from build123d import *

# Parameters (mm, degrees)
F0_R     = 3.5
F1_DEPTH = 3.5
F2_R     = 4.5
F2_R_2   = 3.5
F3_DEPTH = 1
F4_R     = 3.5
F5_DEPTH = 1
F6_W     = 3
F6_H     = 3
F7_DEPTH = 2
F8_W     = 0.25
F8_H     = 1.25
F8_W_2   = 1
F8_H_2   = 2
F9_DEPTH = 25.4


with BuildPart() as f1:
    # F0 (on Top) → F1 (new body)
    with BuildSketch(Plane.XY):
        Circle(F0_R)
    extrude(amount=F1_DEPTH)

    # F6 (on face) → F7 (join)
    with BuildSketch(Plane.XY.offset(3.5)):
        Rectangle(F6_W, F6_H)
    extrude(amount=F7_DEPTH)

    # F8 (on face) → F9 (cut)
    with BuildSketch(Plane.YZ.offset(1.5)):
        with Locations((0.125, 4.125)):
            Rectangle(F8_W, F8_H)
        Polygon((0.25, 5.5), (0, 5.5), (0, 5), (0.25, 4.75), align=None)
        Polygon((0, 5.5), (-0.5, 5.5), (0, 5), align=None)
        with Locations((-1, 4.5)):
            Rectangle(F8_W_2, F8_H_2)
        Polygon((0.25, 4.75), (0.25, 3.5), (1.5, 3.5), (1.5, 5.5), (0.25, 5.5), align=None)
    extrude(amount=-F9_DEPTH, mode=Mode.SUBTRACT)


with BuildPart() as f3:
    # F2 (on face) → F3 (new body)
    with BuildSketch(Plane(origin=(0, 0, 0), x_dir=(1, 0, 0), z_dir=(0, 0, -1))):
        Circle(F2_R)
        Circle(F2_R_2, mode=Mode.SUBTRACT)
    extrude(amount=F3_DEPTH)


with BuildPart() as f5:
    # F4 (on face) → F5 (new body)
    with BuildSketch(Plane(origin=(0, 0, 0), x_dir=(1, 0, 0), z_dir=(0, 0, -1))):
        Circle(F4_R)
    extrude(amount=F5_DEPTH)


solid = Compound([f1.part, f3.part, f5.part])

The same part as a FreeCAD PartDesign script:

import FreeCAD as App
import Part
import Sketcher

V = App.Vector
Q = App.Units.Quantity

doc = App.newDocument("Part")
body = doc.addObject("PartDesign::Body", "Body")

# Sketch on XY plane
sketch1 = body.newObject("Sketcher::SketchObject", "Sketch")
sketch1.AttachmentSupport = (doc.getObject("XY_Plane"), [""])
sketch1.MapMode = "FlatFace"
sketch1.addGeometry(Part.Circle(V(0, 0, 0), V(0, 0, 1), 3.5), False)
sketch1.addConstraint(Sketcher.Constraint("Coincident", 0, 3, -1, 1))
sketch1.addConstraint(Sketcher.Constraint("Diameter", 0, Q("7 mm")))
pad1 = body.newObject("PartDesign::Pad", "Pad")
pad1.Profile = sketch1
pad1.Length = 3.5

# Sketch on XY plane
sketch2 = body.newObject("Sketcher::SketchObject", "Sketch001")
sketch2.AttachmentSupport = (doc.getObject("XY_Plane"), [""])
sketch2.MapMode = "FlatFace"
sketch2.AttachmentOffset = App.Placement(V(0, 0, 3.5), App.Rotation())
sketch2.addGeometry(Part.LineSegment(V(-1.5, 1.5, 0), V(-1.5, -1.5, 0)), False)
sketch2.addGeometry(Part.LineSegment(V(-1.5, -1.5, 0), V(1.5, -1.5, 0)), False)
sketch2.addGeometry(Part.LineSegment(V(1.5, -1.5, 0), V(1.5, 1.5, 0)), False)
sketch2.addGeometry(Part.LineSegment(V(1.5, 1.5, 0), V(-1.5, 1.5, 0)), False)
sketch2.addConstraint(Sketcher.Constraint("Coincident", 0, 2, 1, 1))
sketch2.addConstraint(Sketcher.Constraint("Coincident", 1, 2, 2, 1))
sketch2.addConstraint(Sketcher.Constraint("Coincident", 2, 2, 3, 1))
sketch2.addConstraint(Sketcher.Constraint("Coincident", 3, 2, 0, 1))
sketch2.addConstraint(Sketcher.Constraint("Vertical", 0))
sketch2.addConstraint(Sketcher.Constraint("Horizontal", 1))
sketch2.addConstraint(Sketcher.Constraint("Vertical", 2))
sketch2.addConstraint(Sketcher.Constraint("Horizontal", 3))
sketch2.addConstraint(Sketcher.Constraint("Symmetric", 0, 2, 2, 2, -1, 1))
sketch2.addConstraint(Sketcher.Constraint("Equal", 3, 0))
sketch2.addConstraint(Sketcher.Constraint("DistanceX", 1, 1, 1, 2, Q("3 mm")))
pad2 = body.newObject("PartDesign::Pad", "Pad001")
pad2.Profile = sketch2
pad2.Length = 2

# Sketch on YZ plane
sketch3 = body.newObject("Sketcher::SketchObject", "Sketch002")
sketch3.AttachmentSupport = (doc.getObject("YZ_Plane"), [""])
sketch3.MapMode = "FlatFace"
sketch3.AttachmentOffset = App.Placement(V(0, 0, 1.5), App.Rotation())
sketch3.addGeometry(Part.LineSegment(V(0, 4.75, 0), V(0, 3.5, 0)), False)
sketch3.addGeometry(Part.LineSegment(V(0, 3.5, 0), V(1.5, 3.5, 0)), False)
sketch3.addGeometry(Part.LineSegment(V(1.5, 3.5, 0), V(1.5, 5.5, 0)), False)
sketch3.addGeometry(Part.LineSegment(V(1.5, 5.5, 0), V(-0.5, 5.5, 0)), False)
sketch3.addGeometry(Part.LineSegment(V(-0.5, 5.5, 0), V(0.25, 4.75, 0)), False)
sketch3.addGeometry(Part.LineSegment(V(0.25, 4.75, 0), V(0, 4.75, 0)), False)
sketch3.addGeometry(Part.LineSegment(V(-1.5, 5.5, 0), V(-1.5, 3.5, 0)), False)
sketch3.addGeometry(Part.LineSegment(V(-1.5, 3.5, 0), V(-0.5, 3.5, 0)), False)
sketch3.addGeometry(Part.LineSegment(V(-0.5, 3.5, 0), V(-0.5, 5.5, 0)), False)
sketch3.addGeometry(Part.LineSegment(V(-0.5, 5.5, 0), V(-1.5, 5.5, 0)), False)
sketch3.addConstraint(Sketcher.Constraint("Coincident", 0, 2, 1, 1))
sketch3.addConstraint(Sketcher.Constraint("Coincident", 1, 2, 2, 1))
sketch3.addConstraint(Sketcher.Constraint("Coincident", 2, 2, 3, 1))
sketch3.addConstraint(Sketcher.Constraint("Coincident", 3, 2, 4, 1))
sketch3.addConstraint(Sketcher.Constraint("Coincident", 4, 2, 5, 1))
sketch3.addConstraint(Sketcher.Constraint("Coincident", 5, 2, 0, 1))
sketch3.addConstraint(Sketcher.Constraint("Coincident", 6, 2, 7, 1))
sketch3.addConstraint(Sketcher.Constraint("Coincident", 7, 2, 8, 1))
sketch3.addConstraint(Sketcher.Constraint("Coincident", 8, 2, 9, 1))
sketch3.addConstraint(Sketcher.Constraint("Coincident", 9, 2, 6, 1))
sketch3.addConstraint(Sketcher.Constraint("Vertical", 0))
sketch3.addConstraint(Sketcher.Constraint("Horizontal", 1))
sketch3.addConstraint(Sketcher.Constraint("Vertical", 2))
sketch3.addConstraint(Sketcher.Constraint("Horizontal", 3))
sketch3.addConstraint(Sketcher.Constraint("Horizontal", 5))
sketch3.addConstraint(Sketcher.Constraint("Vertical", 6))
sketch3.addConstraint(Sketcher.Constraint("Horizontal", 7))
sketch3.addConstraint(Sketcher.Constraint("Vertical", 8))
sketch3.addConstraint(Sketcher.Constraint("Horizontal", 9))
sketch3.addConstraint(Sketcher.Constraint("Coincident", 8, 2, 3, 2))
sketch3.addConstraint(Sketcher.Constraint("Symmetric", 1, 2, 6, 2, -2))
sketch3.addConstraint(Sketcher.Constraint("PointOnObject", 0, 2, -2))
sketch3.addConstraint(Sketcher.Constraint("Equal", 3, 2))
sketch3.addConstraint(Sketcher.Constraint("DistanceX", 3, 2, 3, 1, Q("2 mm")))
sketch3.addConstraint(Sketcher.Constraint("DistanceX", 7, 1, 7, 2, Q("1 mm")))
sketch3.addConstraint(Sketcher.Constraint("Angle", 4, Q("-45 deg")))
sketch3.addConstraint(Sketcher.Constraint("DistanceX", 5, 2, 5, 1, Q("0.25 mm")))
sketch3.addConstraint(Sketcher.Constraint("DistanceY", -1, 1, 0, 2, Q("3.5 mm")))
pocket1 = body.newObject("PartDesign::Pocket", "Pocket")
pocket1.Profile = sketch3
pocket1.Length = 25.4
body2 = doc.addObject("PartDesign::Body", "Body001")

# Sketch on XY plane
sketch4 = body2.newObject("Sketcher::SketchObject", "Sketch003")
sketch4.AttachmentSupport = (doc.getObject("XY_Plane001"), [""])
sketch4.MapMode = "FlatFace"
sketch4.addGeometry(Part.Circle(V(0, 0, 0), V(0, 0, 1), 4.5), False)
sketch4.addGeometry(Part.Circle(V(0, 0, 0), V(0, 0, 1), 3.5), False)
sketch4.addConstraint(Sketcher.Constraint("Coincident", 0, 3, -1, 1))
sketch4.addConstraint(Sketcher.Constraint("Coincident", 1, 3, -1, 1))
sketch4.addConstraint(Sketcher.Constraint("Diameter", 0, Q("9 mm")))
sketch4.addConstraint(Sketcher.Constraint("Diameter", 1, Q("7 mm")))
pad3 = body2.newObject("PartDesign::Pad", "Pad002")
pad3.Profile = sketch4
pad3.Length = 1
pad3.Reversed = True
body3 = doc.addObject("PartDesign::Body", "Body002")

# Sketch on XY plane
sketch5 = body3.newObject("Sketcher::SketchObject", "Sketch004")
sketch5.AttachmentSupport = (doc.getObject("XY_Plane002"), [""])
sketch5.MapMode = "FlatFace"
sketch5.addGeometry(Part.Circle(V(0, 0, 0), V(0, 0, 1), 3.5), False)
sketch5.addConstraint(Sketcher.Constraint("Coincident", 0, 3, -1, 1))
sketch5.addConstraint(Sketcher.Constraint("Diameter", 0, Q("7 mm")))
pad4 = body3.newObject("PartDesign::Pad", "Pad003")
pad4.Profile = sketch5
pad4.Length = 1
pad4.Reversed = True

doc.recompute()
